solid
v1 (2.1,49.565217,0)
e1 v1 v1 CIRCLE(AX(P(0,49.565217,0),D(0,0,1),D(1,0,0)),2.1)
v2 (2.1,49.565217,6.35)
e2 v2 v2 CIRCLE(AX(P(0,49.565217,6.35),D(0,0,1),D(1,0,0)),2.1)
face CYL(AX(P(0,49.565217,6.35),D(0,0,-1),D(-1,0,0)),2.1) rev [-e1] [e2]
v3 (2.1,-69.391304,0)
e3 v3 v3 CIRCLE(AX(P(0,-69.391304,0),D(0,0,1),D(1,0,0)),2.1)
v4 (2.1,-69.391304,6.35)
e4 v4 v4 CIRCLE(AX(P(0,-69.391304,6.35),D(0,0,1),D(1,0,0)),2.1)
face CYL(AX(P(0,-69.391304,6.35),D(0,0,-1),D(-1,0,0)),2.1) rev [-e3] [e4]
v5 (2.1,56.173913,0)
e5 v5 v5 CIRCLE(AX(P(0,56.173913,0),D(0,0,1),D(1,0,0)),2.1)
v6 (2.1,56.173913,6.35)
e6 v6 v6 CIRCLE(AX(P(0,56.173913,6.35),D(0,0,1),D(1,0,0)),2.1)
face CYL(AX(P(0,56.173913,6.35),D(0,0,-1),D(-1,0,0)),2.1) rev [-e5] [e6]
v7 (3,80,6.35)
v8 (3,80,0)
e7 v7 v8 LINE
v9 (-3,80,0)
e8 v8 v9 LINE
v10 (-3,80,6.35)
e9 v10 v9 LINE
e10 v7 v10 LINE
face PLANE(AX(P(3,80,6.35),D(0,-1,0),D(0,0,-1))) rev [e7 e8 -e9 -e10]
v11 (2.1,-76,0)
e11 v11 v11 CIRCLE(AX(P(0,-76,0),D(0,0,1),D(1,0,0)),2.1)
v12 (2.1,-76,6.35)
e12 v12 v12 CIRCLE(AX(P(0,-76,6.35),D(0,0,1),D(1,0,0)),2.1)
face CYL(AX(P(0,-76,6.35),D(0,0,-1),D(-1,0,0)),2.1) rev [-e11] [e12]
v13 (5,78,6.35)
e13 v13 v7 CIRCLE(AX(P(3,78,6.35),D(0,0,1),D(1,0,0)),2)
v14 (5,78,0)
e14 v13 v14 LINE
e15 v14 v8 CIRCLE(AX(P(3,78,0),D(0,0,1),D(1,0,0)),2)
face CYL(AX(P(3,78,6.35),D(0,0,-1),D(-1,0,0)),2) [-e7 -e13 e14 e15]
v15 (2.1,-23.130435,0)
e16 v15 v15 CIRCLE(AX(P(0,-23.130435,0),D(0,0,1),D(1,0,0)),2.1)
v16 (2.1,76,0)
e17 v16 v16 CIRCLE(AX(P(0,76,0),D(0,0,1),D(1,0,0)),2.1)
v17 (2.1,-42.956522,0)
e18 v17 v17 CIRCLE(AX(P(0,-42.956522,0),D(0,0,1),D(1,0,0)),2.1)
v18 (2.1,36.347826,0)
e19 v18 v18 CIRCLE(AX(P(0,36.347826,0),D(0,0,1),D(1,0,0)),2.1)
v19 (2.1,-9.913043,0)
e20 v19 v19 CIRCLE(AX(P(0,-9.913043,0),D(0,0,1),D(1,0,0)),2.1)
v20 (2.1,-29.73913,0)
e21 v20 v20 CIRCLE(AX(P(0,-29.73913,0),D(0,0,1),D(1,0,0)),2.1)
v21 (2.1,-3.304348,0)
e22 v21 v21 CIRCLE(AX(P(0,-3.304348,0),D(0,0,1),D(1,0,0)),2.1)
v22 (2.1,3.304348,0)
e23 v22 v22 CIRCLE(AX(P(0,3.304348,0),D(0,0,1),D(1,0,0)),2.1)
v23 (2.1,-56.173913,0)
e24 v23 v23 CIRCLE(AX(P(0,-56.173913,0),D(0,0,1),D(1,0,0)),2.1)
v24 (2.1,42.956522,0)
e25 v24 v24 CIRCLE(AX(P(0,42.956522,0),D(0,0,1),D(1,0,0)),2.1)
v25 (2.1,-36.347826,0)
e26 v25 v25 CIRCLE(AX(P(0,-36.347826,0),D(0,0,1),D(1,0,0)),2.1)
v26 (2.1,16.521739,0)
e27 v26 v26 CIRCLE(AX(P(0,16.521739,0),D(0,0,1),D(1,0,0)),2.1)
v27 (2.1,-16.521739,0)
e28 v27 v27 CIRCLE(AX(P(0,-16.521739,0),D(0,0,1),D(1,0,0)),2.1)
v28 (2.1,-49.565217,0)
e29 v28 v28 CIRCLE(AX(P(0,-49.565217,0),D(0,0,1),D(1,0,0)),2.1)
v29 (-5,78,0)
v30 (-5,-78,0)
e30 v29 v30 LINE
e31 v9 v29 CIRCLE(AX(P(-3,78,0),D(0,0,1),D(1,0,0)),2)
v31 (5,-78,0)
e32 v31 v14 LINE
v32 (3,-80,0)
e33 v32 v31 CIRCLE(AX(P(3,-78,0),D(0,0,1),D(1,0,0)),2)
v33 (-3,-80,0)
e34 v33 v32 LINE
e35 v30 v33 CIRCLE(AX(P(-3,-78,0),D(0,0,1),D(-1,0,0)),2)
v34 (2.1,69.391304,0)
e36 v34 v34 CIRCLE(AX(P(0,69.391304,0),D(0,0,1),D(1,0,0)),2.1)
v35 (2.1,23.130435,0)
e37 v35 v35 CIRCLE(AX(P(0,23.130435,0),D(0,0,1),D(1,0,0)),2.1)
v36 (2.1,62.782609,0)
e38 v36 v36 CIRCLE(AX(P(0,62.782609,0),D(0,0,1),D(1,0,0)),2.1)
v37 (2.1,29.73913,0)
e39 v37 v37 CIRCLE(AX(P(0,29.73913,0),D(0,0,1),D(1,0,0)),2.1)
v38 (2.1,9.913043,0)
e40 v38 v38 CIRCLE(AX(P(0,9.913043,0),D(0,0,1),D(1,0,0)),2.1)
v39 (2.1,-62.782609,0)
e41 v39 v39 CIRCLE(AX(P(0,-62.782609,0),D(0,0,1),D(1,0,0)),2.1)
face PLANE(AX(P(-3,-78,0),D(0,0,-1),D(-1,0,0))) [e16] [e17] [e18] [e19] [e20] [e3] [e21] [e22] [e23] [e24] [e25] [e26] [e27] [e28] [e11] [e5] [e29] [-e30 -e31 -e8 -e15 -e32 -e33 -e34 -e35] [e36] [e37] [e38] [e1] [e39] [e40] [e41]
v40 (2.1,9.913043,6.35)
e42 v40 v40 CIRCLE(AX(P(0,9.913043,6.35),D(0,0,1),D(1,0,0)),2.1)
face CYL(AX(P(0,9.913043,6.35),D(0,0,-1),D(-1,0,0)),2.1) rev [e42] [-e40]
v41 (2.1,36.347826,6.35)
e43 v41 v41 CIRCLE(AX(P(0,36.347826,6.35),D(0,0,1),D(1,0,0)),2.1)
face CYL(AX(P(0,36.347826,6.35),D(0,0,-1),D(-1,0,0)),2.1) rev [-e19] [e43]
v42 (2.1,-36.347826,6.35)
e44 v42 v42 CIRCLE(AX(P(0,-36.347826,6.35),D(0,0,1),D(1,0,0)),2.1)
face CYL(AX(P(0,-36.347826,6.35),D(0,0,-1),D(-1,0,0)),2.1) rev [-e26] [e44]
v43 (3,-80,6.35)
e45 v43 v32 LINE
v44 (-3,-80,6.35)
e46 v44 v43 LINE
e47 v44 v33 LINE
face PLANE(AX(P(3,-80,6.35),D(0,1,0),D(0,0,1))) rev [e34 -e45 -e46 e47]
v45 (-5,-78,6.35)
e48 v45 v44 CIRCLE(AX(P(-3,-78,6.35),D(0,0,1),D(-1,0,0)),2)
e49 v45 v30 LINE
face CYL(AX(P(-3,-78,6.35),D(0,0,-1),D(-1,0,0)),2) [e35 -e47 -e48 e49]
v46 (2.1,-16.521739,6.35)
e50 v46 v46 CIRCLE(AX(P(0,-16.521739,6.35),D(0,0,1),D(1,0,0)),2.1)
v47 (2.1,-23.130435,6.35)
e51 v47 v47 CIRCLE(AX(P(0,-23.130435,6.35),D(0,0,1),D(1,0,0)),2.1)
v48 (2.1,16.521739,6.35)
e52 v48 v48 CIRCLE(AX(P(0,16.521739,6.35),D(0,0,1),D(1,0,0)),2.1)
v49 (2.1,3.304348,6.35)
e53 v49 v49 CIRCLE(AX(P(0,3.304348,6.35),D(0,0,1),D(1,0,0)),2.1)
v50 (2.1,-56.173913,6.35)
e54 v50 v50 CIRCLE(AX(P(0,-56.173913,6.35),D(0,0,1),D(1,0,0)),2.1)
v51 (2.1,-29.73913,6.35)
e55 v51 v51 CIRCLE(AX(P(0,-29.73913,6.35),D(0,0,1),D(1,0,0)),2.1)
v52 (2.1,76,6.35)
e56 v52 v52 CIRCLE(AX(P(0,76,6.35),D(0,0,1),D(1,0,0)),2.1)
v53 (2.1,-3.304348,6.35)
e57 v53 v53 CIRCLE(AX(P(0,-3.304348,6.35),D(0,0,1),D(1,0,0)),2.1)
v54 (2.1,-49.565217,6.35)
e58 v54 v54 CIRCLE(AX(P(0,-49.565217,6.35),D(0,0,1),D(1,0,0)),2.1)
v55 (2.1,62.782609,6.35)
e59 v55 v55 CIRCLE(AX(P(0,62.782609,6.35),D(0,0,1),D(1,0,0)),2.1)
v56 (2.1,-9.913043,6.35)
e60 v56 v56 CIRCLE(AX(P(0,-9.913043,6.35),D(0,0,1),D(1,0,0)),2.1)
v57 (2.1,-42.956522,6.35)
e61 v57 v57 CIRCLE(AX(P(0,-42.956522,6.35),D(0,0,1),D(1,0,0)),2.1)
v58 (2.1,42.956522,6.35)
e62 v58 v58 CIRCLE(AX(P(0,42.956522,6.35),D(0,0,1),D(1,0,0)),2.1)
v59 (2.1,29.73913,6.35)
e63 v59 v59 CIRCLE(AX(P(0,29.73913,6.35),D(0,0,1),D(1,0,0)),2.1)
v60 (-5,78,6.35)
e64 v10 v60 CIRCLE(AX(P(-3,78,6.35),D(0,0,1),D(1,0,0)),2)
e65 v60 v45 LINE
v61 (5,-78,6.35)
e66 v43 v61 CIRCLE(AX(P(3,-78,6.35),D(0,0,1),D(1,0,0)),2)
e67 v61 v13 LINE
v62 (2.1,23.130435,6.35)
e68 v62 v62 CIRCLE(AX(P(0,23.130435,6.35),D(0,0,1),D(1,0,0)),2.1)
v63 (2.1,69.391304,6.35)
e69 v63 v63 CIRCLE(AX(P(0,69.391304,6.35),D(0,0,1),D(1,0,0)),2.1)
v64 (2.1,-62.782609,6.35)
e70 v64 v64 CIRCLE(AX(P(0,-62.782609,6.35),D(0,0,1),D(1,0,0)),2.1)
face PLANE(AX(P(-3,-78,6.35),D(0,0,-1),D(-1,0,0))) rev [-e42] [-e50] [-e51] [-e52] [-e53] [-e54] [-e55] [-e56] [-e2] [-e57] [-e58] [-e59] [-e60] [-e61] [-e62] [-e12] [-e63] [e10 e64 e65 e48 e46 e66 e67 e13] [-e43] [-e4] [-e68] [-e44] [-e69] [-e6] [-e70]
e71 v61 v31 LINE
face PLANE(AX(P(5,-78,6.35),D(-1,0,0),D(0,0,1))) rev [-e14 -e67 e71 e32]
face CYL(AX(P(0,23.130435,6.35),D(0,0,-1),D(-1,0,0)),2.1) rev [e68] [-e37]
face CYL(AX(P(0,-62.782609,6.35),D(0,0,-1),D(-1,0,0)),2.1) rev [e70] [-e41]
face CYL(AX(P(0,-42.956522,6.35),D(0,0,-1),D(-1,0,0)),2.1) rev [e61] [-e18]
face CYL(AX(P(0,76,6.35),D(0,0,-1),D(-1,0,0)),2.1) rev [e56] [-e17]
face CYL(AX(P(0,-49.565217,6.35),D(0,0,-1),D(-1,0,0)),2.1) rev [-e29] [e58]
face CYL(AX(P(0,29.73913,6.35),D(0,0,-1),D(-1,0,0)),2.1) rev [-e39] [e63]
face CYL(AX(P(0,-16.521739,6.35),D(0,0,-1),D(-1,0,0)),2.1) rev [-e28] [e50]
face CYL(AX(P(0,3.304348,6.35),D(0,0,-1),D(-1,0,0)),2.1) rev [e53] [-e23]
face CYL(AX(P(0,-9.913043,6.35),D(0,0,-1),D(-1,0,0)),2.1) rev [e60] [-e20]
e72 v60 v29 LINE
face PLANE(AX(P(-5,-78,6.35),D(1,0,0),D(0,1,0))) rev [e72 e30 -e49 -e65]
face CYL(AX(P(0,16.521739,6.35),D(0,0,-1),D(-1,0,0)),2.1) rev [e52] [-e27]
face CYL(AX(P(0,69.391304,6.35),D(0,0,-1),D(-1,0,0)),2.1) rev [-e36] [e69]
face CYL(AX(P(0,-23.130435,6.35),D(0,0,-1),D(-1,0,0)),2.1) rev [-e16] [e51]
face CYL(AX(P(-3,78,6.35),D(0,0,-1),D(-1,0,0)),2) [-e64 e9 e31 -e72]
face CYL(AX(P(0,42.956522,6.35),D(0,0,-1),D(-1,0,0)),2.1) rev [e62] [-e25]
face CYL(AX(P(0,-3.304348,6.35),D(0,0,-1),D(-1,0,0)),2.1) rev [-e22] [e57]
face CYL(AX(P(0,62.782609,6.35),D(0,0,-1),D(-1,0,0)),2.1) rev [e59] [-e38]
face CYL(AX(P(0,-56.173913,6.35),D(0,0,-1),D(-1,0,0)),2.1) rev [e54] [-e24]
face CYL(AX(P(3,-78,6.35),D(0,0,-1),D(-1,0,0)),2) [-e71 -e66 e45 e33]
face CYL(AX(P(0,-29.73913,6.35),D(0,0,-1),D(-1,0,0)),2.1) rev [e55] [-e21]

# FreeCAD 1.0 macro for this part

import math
import FreeCAD as App
import Part
import Sketcher

V = App.Vector
Q = App.Units.Quantity

doc = App.newDocument("Part")
body = doc.addObject("PartDesign::Body", "Body")

# Sketch on XY plane
sketch1 = body.newObject("Sketcher::SketchObject", "Sketch")
sketch1.AttachmentSupport = (doc.getObject("XY_Plane"), [""])
sketch1.MapMode = "FlatFace"
sketch1.addGeometry(Part.LineSegment(V(-3, -80, 0), V(3, -80, 0)), False)
sketch1.addGeometry(Part.ArcOfCircle(Part.Circle(V(3, -78, 0), V(0, 0, 1), 2), math.radians(-90), math.radians(0)), False)
sketch1.addGeometry(Part.LineSegment(V(5, -78, 0), V(5, 78, 0)), False)
sketch1.addGeometry(Part.ArcOfCircle(Part.Circle(V(3, 78, 0), V(0, 0, 1), 2), math.radians(0), math.radians(90)), False)
sketch1.addGeometry(Part.LineSegment(V(3, 80, 0), V(-3, 80, 0)), False)
sketch1.addGeometry(Part.ArcOfCircle(Part.Circle(V(-3, 78, 0), V(0, 0, 1), 2), math.radians(90), math.radians(180)), False)
sketch1.addGeometry(Part.LineSegment(V(-5, 78, 0), V(-5, -78, 0)), False)
sketch1.addGeometry(Part.ArcOfCircle(Part.Circle(V(-3, -78, 0), V(0, 0, 1), 2), math.radians(-180), math.radians(-90)), False)
sketch1.addGeometry(Part.Circle(V(0, -76, 0), V(0, 0, 1), 2.1), False)
sketch1.addGeometry(Part.Circle(V(0, -69.4, 0), V(0, 0, 1), 2.1), False)
sketch1.addGeometry(Part.Circle(V(0, -62.8, 0), V(0, 0, 1), 2.1), False)
sketch1.addGeometry(Part.Circle(V(0, -56.2, 0), V(0, 0, 1), 2.1), False)
sketch1.addGeometry(Part.Circle(V(0, -49.6, 0), V(0, 0, 1), 2.1), False)
sketch1.addGeometry(Part.Circle(V(0, -43, 0), V(0, 0, 1), 2.1), False)
sketch1.addGeometry(Part.Circle(V(0, -36.3, 0), V(0, 0, 1), 2.1), False)
sketch1.addGeometry(Part.Circle(V(0, -29.7, 0), V(0, 0, 1), 2.1), False)
sketch1.addGeometry(Part.Circle(V(0, -23.1, 0), V(0, 0, 1), 2.1), False)
sketch1.addGeometry(Part.Circle(V(0, -16.5, 0), V(0, 0, 1), 2.1), False)
sketch1.addGeometry(Part.Circle(V(0, -9.9, 0), V(0, 0, 1), 2.1), False)
sketch1.addGeometry(Part.Circle(V(0, -3.3, 0), V(0, 0, 1), 2.1), False)
sketch1.addGeometry(Part.Circle(V(0, 3.3, 0), V(0, 0, 1), 2.1), False)
sketch1.addGeometry(Part.Circle(V(0, 9.9, 0), V(0, 0, 1), 2.1), False)
sketch1.addGeometry(Part.Circle(V(0, 16.5, 0), V(0, 0, 1), 2.1), False)
sketch1.addGeometry(Part.Circle(V(0, 23.1, 0), V(0, 0, 1), 2.1), False)
sketch1.addGeometry(Part.Circle(V(0, 29.7, 0), V(0, 0, 1), 2.1), False)
sketch1.addGeometry(Part.Circle(V(0, 36.3, 0), V(0, 0, 1), 2.1), False)
sketch1.addGeometry(Part.Circle(V(0, 43, 0), V(0, 0, 1), 2.1), False)
sketch1.addGeometry(Part.Circle(V(0, 49.6, 0), V(0, 0, 1), 2.1), False)
sketch1.addGeometry(Part.Circle(V(0, 56.2, 0), V(0, 0, 1), 2.1), False)
sketch1.addGeometry(Part.Circle(V(0, 62.8, 0), V(0, 0, 1), 2.1), False)
sketch1.addGeometry(Part.Circle(V(0, 69.4, 0), V(0, 0, 1), 2.1), False)
sketch1.addGeometry(Part.Circle(V(0, 76, 0), V(0, 0, 1), 2.1), False)
sketch1.addConstraint(Sketcher.Constraint("Tangent", 0, 2, 1, 1))
sketch1.addConstraint(Sketcher.Constraint("Tangent", 1, 2, 2, 1))
sketch1.addConstraint(Sketcher.Constraint("Tangent", 2, 2, 3, 1))
sketch1.addConstraint(Sketcher.Constraint("Tangent", 3, 2, 4, 1))
sketch1.addConstraint(Sketcher.Constraint("Tangent", 4, 2, 5, 1))
sketch1.addConstraint(Sketcher.Constraint("Tangent", 5, 2, 6, 1))
sketch1.addConstraint(Sketcher.Constraint("Tangent", 6, 2, 7, 1))
sketch1.addConstraint(Sketcher.Constraint("Tangent", 7, 2, 0, 1))
sketch1.addConstraint(Sketcher.Constraint("Horizontal", 0))
sketch1.addConstraint(Sketcher.Constraint("Vertical", 2))
sketch1.addConstraint(Sketcher.Constraint("Horizontal", 4))
sketch1.addConstraint(Sketcher.Constraint("Vertical", 6))
sketch1.addConstraint(Sketcher.Constraint("Equal", 1, 3))
sketch1.addConstraint(Sketcher.Constraint("Equal", 3, 5))
sketch1.addConstraint(Sketcher.Constraint("Equal", 5, 7))
sketch1.addConstraint(Sketcher.Constraint("Equal", 8, 9))
sketch1.addConstraint(Sketcher.Constraint("Equal", 9, 10))
sketch1.addConstraint(Sketcher.Constraint("Equal", 10, 11))
sketch1.addConstraint(Sketcher.Constraint("Equal", 11, 12))
sketch1.addConstraint(Sketcher.Constraint("Equal", 12, 13))
sketch1.addConstraint(Sketcher.Constraint("Equal", 13, 14))
sketch1.addConstraint(Sketcher.Constraint("Equal", 14, 15))
sketch1.addConstraint(Sketcher.Constraint("Equal", 15, 16))
sketch1.addConstraint(Sketcher.Constraint("Equal", 16, 17))
sketch1.addConstraint(Sketcher.Constraint("Equal", 17, 18))
sketch1.addConstraint(Sketcher.Constraint("Equal", 18, 19))
sketch1.addConstraint(Sketcher.Constraint("Equal", 19, 20))
sketch1.addConstraint(Sketcher.Constraint("Equal", 20, 21))
sketch1.addConstraint(Sketcher.Constraint("Equal", 21, 22))
sketch1.addConstraint(Sketcher.Constraint("Equal", 22, 23))
sketch1.addConstraint(Sketcher.Constraint("Equal", 23, 24))
sketch1.addConstraint(Sketcher.Constraint("Equal", 24, 25))
sketch1.addConstraint(Sketcher.Constraint("Equal", 25, 26))
sketch1.addConstraint(Sketcher.Constraint("Equal", 26, 27))
sketch1.addConstraint(Sketcher.Constraint("Equal", 27, 28))
sketch1.addConstraint(Sketcher.Constraint("Equal", 28, 29))
sketch1.addConstraint(Sketcher.Constraint("Equal", 29, 30))
sketch1.addConstraint(Sketcher.Constraint("Equal", 30, 31))
sketch1.addConstraint(Sketcher.Constraint("Symmetric", 1, 3, 5, 3, -1, 1))
sketch1.addConstraint(Sketcher.Constraint("Symmetric", 19, 3, 20, 3, -1, 1))
sketch1.addConstraint(Sketcher.Constraint("Symmetric", 18, 3, 21, 3, -1, 1))
sketch1.addConstraint(Sketcher.Constraint("Symmetric", 17, 3, 22, 3, -1, 1))
sketch1.addConstraint(Sketcher.Constraint("Symmetric", 16, 3, 23, 3, -1, 1))
sketch1.addConstraint(Sketcher.Constraint("Symmetric", 15, 3, 24, 3, -1, 1))
sketch1.addConstraint(Sketcher.Constraint("Symmetric", 14, 3, 25, 3, -1, 1))
sketch1.addConstraint(Sketcher.Constraint("Symmetric", 13, 3, 26, 3, -1, 1))
sketch1.addConstraint(Sketcher.Constraint("Symmetric", 12, 3, 27, 3, -1, 1))
sketch1.addConstraint(Sketcher.Constraint("Symmetric", 11, 3, 28, 3, -1, 1))
sketch1.addConstraint(Sketcher.Constraint("Symmetric", 10, 3, 29, 3, -1, 1))
sketch1.addConstraint(Sketcher.Constraint("Symmetric", 9, 3, 30, 3, -1, 1))
sketch1.addConstraint(Sketcher.Constraint("Symmetric", 8, 3, 31, 3, -1, 1))
sketch1.addConstraint(Sketcher.Constraint("PointOnObject", 8, 3, -2))
sketch1.addConstraint(Sketcher.Constraint("PointOnObject", 9, 3, -2))
sketch1.addConstraint(Sketcher.Constraint("PointOnObject", 10, 3, -2))
sketch1.addConstraint(Sketcher.Constraint("PointOnObject", 11, 3, -2))
sketch1.addConstraint(Sketcher.Constraint("PointOnObject", 12, 3, -2))
sketch1.addConstraint(Sketcher.Constraint("PointOnObject", 13, 3, -2))
sketch1.addConstraint(Sketcher.Constraint("PointOnObject", 14, 3, -2))
sketch1.addConstraint(Sketcher.Constraint("PointOnObject", 15, 3, -2))
sketch1.addConstraint(Sketcher.Constraint("PointOnObject", 16, 3, -2))
sketch1.addConstraint(Sketcher.Constraint("PointOnObject", 17, 3, -2))
sketch1.addConstraint(Sketcher.Constraint("PointOnObject", 18, 3, -2))
sketch1.addConstraint(Sketcher.Constraint("PointOnObject", 19, 3, -2))
sketch1.addConstraint(Sketcher.Constraint("Radius", 1, Q("2 mm")))
sketch1.addConstraint(Sketcher.Constraint("Diameter", 8, Q("4.2 mm")))
sketch1.addConstraint(Sketcher.Constraint("DistanceX", 0, 1, 0, 2, Q("6 mm")))
sketch1.addConstraint(Sketcher.Constraint("DistanceY", 2, 1, 2, 2, Q("156 mm")))
sketch1.addConstraint(Sketcher.Constraint("DistanceY", 8, 3, -1, 1, Q("76 mm")))
sketch1.addConstraint(Sketcher.Constraint("DistanceY", 10, 3, -1, 1, Q("62.782609 mm")))
sketch1.addConstraint(Sketcher.Constraint("DistanceY", 13, 3, -1, 1, Q("42.956522 mm")))
sketch1.addConstraint(Sketcher.Constraint("DistanceY", 15, 3, -1, 1, Q("29.73913 mm")))
sketch1.addConstraint(Sketcher.Constraint("DistanceY", 17, 3, -1, 1, Q("16.521739 mm")))
sketch1.addConstraint(Sketcher.Constraint("DistanceY", 9, 3, 11, 3, Q("13.217391 mm")))
sketch1.addConstraint(Sketcher.Constraint("DistanceY", 10, 3, 12, 3, Q("13.217391 mm")))
sketch1.addConstraint(Sketcher.Constraint("DistanceY", 11, 3, 13, 3, Q("13.217391 mm")))
sketch1.addConstraint(Sketcher.Constraint("DistanceY", 12, 3, 14, 3, Q("13.217391 mm")))
sketch1.addConstraint(Sketcher.Constraint("DistanceY", 14, 3, 16, 3, Q("13.217391 mm")))
sketch1.addConstraint(Sketcher.Constraint("DistanceY", 16, 3, 18, 3, Q("13.217391 mm")))
sketch1.addConstraint(Sketcher.Constraint("DistanceY", 17, 3, 19, 3, Q("13.217391 mm")))
pad1 = body.newObject("PartDesign::Pad", "Pad")
pad1.Profile = sketch1
pad1.Length = 6.35

doc.recompute()
